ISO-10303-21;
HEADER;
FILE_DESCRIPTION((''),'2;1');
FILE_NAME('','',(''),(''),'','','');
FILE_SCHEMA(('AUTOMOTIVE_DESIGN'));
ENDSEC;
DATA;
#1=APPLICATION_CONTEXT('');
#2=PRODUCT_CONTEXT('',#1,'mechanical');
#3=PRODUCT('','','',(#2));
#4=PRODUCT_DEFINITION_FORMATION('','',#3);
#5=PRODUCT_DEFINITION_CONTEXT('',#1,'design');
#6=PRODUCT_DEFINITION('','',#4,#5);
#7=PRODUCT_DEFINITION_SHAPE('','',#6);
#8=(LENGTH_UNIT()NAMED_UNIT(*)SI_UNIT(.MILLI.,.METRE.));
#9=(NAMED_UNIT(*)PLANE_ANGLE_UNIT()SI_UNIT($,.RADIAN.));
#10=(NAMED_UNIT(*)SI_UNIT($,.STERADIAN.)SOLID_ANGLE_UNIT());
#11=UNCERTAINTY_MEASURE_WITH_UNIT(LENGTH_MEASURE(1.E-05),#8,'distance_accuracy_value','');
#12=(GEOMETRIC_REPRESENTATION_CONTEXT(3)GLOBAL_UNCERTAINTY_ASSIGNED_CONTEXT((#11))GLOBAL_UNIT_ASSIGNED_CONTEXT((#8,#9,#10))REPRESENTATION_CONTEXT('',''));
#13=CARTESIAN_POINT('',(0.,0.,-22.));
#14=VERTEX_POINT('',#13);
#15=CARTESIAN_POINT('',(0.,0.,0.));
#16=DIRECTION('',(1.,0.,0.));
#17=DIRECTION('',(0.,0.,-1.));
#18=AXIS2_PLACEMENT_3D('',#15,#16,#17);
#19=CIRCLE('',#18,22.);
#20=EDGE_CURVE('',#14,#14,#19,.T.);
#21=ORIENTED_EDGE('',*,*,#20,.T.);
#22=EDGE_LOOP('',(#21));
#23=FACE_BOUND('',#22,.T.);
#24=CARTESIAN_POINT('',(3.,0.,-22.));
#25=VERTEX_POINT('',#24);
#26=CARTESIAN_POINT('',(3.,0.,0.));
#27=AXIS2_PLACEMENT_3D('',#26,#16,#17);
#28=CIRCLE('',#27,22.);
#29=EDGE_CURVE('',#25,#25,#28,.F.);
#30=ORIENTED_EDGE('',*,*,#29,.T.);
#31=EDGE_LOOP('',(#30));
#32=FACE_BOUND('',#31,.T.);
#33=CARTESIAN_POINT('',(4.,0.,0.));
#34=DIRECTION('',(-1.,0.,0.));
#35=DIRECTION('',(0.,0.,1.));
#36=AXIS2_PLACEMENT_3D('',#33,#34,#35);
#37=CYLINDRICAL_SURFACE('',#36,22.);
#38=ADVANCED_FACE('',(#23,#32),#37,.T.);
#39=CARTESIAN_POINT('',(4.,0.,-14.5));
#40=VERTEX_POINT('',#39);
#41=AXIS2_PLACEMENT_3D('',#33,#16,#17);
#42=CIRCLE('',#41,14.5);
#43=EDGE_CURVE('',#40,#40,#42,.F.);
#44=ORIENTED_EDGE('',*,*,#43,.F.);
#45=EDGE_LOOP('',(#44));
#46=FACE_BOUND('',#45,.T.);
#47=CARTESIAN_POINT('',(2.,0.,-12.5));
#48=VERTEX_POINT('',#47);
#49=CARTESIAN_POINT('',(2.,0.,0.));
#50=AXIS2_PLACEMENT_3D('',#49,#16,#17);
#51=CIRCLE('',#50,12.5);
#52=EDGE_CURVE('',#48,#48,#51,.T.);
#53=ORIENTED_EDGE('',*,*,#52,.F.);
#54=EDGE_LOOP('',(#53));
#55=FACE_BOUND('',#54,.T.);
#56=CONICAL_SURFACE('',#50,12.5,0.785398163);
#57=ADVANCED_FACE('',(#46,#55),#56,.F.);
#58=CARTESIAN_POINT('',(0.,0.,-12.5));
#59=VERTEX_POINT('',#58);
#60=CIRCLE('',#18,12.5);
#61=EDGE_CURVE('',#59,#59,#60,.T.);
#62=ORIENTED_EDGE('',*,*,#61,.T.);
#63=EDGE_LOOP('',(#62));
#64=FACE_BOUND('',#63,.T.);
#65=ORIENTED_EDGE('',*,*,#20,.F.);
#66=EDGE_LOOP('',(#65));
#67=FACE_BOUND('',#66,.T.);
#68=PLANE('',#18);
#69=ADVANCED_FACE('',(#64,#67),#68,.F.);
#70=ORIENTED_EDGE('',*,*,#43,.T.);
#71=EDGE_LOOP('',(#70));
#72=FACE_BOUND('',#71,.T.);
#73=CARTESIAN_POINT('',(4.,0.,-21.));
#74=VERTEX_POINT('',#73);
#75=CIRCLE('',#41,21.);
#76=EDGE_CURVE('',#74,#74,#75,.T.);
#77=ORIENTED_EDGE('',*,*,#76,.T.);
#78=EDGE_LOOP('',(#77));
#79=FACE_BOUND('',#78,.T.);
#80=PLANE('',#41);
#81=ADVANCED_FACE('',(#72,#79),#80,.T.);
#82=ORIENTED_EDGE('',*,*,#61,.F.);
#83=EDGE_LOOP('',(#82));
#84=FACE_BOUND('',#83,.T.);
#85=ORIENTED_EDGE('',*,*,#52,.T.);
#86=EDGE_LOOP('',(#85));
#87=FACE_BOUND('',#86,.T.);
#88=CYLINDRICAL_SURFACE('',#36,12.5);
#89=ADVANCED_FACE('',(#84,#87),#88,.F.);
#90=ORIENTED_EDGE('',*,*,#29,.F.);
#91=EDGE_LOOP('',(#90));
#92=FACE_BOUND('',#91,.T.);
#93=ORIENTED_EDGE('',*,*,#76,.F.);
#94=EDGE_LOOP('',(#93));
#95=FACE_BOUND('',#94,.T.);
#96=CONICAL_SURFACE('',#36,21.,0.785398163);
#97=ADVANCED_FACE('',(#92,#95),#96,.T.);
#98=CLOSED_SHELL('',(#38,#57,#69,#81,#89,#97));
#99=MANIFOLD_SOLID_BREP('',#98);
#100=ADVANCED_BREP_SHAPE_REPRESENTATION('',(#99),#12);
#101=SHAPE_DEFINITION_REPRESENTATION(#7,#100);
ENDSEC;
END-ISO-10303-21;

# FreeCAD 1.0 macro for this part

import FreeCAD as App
import Part
import Sketcher
Q = App.Units.Quantity


def edges_at(feature, points):
    """Names of the edges that pass closest to the given points."""
    edges = feature.Shape.Edges
    near = lambda p: min(range(len(edges)), key=lambda i: edges[i].distToShape(Part.Vertex(*p))[0])
    return sorted({f"Edge{near(p) + 1}" for p in points})

doc = App.newDocument("Part")
params = doc.addObject("Spreadsheet::Sheet", "Params")
for row, (alias, value) in enumerate([
    ("sketch1_diameter", "44 mm"),
    ("sketch1_diameter2", "25 mm"),
    ("pad1_length", "4 mm"),
    ("chamfer_size", "2 mm"),
    ("chamfer2_size", "1 mm"),
], start=1):
    params.set(f"A{row}", alias)
    params.set(f"B{row}", "=" + value)
    params.setAlias(f"B{row}", alias)

body = doc.addObject("PartDesign::Body", "Body")

# Sketch on YZ plane
sketch1 = doc.addObject("Sketcher::SketchObject", "Sketch")
body.addObject(sketch1)
sketch1.AttachmentSupport = (doc.YZ_Plane, [""])
sketch1.MapMode = "FlatFace"
sketch1.addGeometry(Part.Circle(App.Vector(0, 0, 0), App.Vector(0, 0, 1), 22), False)
sketch1.addGeometry(Part.Circle(App.Vector(0, 0, 0), App.Vector(0, 0, 1), 12.5), False)
sketch1.addConstraint(Sketcher.Constraint("Coincident", 0, 3, -1, 1))
sketch1.addConstraint(Sketcher.Constraint("Coincident", 1, 3, -1, 1))
sketch1.addConstraint(Sketcher.Constraint("Diameter", 0, Q("44 mm")))
sketch1.addConstraint(Sketcher.Constraint("Diameter", 1, Q("25 mm")))
sketch1.setExpression("Constraints[2]", "Params.sketch1_diameter")
sketch1.setExpression("Constraints[3]", "Params.sketch1_diameter2")
pad1 = doc.addObject("PartDesign::Pad", "Pad")
body.addObject(pad1)
pad1.Profile = sketch1
pad1.setExpression("Length", "Params.pad1_length")
doc.recompute()

chamfer = doc.addObject("PartDesign::Chamfer", "Chamfer")
body.addObject(chamfer)
chamfer.Base = (pad1, edges_at(pad1, [(4, 0, 12.5)]))
chamfer.setExpression("Size", "Params.chamfer_size")
doc.recompute()

chamfer2 = doc.addObject("PartDesign::Chamfer", "Chamfer001")
body.addObject(chamfer2)
chamfer2.Base = (chamfer, edges_at(chamfer, [(4, 0, 22)]))
chamfer2.setExpression("Size", "Params.chamfer2_size")

doc.recompute()
